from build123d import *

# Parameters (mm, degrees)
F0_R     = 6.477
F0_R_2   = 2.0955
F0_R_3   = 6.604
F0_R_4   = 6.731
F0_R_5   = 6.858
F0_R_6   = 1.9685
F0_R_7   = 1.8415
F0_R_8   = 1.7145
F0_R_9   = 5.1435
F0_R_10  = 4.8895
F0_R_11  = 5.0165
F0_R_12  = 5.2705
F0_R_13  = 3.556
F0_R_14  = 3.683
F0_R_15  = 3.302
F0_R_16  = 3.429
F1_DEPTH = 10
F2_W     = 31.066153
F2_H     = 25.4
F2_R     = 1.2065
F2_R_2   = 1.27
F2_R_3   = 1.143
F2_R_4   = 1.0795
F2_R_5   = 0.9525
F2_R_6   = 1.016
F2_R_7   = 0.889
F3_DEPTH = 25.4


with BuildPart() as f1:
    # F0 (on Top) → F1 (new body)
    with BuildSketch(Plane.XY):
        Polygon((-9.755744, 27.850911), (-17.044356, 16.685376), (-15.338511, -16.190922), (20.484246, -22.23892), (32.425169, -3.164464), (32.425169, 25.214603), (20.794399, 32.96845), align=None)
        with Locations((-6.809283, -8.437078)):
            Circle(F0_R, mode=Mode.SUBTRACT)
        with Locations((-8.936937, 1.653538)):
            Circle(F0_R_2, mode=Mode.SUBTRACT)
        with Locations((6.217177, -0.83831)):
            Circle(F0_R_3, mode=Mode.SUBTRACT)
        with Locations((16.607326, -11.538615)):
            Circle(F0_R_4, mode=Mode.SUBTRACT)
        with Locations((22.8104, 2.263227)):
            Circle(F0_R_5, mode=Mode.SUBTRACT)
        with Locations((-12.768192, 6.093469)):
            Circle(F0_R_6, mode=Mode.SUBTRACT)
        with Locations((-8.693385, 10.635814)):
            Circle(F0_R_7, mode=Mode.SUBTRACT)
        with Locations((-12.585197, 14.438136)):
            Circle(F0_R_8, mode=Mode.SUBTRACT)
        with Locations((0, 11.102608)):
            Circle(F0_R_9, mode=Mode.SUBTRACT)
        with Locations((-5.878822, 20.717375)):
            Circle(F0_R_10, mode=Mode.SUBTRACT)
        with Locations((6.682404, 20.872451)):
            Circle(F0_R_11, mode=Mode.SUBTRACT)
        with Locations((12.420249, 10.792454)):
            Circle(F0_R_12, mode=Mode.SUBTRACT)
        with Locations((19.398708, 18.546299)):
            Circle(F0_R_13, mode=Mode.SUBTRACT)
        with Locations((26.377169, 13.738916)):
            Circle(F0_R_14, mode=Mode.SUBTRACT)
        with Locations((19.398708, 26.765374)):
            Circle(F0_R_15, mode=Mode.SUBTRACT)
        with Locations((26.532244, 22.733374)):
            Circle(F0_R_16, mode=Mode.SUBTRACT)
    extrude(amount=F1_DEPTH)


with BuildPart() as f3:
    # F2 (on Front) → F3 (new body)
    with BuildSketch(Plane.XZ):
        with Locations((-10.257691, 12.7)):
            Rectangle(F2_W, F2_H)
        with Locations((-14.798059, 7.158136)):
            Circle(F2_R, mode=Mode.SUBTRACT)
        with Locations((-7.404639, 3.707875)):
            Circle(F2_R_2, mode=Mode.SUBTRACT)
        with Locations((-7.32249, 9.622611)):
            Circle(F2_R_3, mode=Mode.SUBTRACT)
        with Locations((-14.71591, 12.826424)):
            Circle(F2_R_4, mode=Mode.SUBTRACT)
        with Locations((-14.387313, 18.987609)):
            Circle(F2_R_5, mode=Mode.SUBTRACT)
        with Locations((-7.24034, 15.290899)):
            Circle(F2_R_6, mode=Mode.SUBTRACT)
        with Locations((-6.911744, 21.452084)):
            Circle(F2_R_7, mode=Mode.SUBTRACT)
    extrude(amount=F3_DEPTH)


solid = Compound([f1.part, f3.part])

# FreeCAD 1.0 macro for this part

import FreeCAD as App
import Part
import Sketcher

V = App.Vector
Q = App.Units.Quantity

doc = App.newDocument("Part")
body = doc.addObject("PartDesign::Body", "Body")

sketch1 = body.newObject("Sketcher::SketchObject", "Sketch")
sketch1.AttachmentSupport = (doc.getObject("XY_Plane"), [""])
sketch1.MapMode = "FlatFace"
sketch1.addGeometry([
    Part.LineSegment(V(-9.8, 27.9, 0), V(-17, 16.7, 0)),
    Part.LineSegment(V(-17, 16.7, 0), V(-15.3, -16.2, 0)),
    Part.LineSegment(V(-15.3, -16.2, 0), V(20.5, -22.2, 0)),
    Part.LineSegment(V(20.5, -22.2, 0), V(32.4, -3.2, 0)),
    Part.LineSegment(V(32.4, -3.2, 0), V(32.4, 25.2, 0)),
    Part.LineSegment(V(32.4, 25.2, 0), V(20.8, 33, 0)),
    Part.LineSegment(V(20.8, 33, 0), V(-9.8, 27.9, 0)),
    Part.Circle(V(-6.8, -8.4, 0), V(0, 0, 1), 6.5),
    Part.Circle(V(-8.9, 1.7, 0), V(0, 0, 1), 2.1),
    Part.Circle(V(6.2, -0.8, 0), V(0, 0, 1), 6.6),
    Part.Circle(V(16.6, -11.5, 0), V(0, 0, 1), 6.7),
    Part.Circle(V(22.8, 2.3, 0), V(0, 0, 1), 6.9),
    Part.Circle(V(-12.8, 6.1, 0), V(0, 0, 1), 2),
    Part.Circle(V(-8.7, 10.6, 0), V(0, 0, 1), 1.8),
    Part.Circle(V(-12.6, 14.4, 0), V(0, 0, 1), 1.7),
    Part.Circle(V(0, 11.1, 0), V(0, 0, 1), 5.1),
    Part.Circle(V(-5.9, 20.7, 0), V(0, 0, 1), 4.9),
    Part.Circle(V(6.7, 20.9, 0), V(0, 0, 1), 5),
    Part.Circle(V(12.4, 10.8, 0), V(0, 0, 1), 5.3),
    Part.Circle(V(26.4, 13.7, 0), V(0, 0, 1), 3.7),
    Part.Circle(V(19.4, 18.5, 0), V(0, 0, 1), 3.6),
    Part.Circle(V(26.5, 22.7, 0), V(0, 0, 1), 3.4),
    Part.Circle(V(19.4, 26.8, 0), V(0, 0, 1), 3.3),
], False)
sketch1.addConstraint([
    Sketcher.Constraint("Coincident", 0, 2, 1, 1),
    Sketcher.Constraint("Coincident", 1, 2, 2, 1),
    Sketcher.Constraint("Coincident", 2, 2, 3, 1),
    Sketcher.Constraint("Coincident", 3, 2, 4, 1),
    Sketcher.Constraint("Coincident", 4, 2, 5, 1),
    Sketcher.Constraint("Coincident", 5, 2, 6, 1),
    Sketcher.Constraint("Coincident", 6, 2, 0, 1),
    Sketcher.Constraint("Vertical", 4),
    Sketcher.Constraint("PointOnObject", 15, 3, -2),
    Sketcher.Constraint("Vertical", 20, 3, 22, 3),
    Sketcher.Constraint("Diameter", 7, Q("0.51 in")),
    Sketcher.Constraint("Diameter", 9, Q("0.52 in")),
    Sketcher.Constraint("Diameter", 10, Q("0.53 in")),
    Sketcher.Constraint("Diameter", 11, Q("0.54 in")),
    Sketcher.Constraint("Diameter", 19, Q("0.29 in")),
    Sketcher.Constraint("Diameter", 20, Q("0.28 in")),
    Sketcher.Constraint("Diameter", 21, Q("0.27 in")),
    Sketcher.Constraint("Diameter", 22, Q("0.26 in")),
    Sketcher.Constraint("Diameter", 8, Q("0.165 in")),
    Sketcher.Constraint("Diameter", 12, Q("0.155 in")),
    Sketcher.Constraint("Diameter", 13, Q("0.145 in")),
    Sketcher.Constraint("Diameter", 14, Q("0.135 in")),
    Sketcher.Constraint("Diameter", 15, Q("0.405 in")),
    Sketcher.Constraint("Diameter", 16, Q("0.385 in")),
    Sketcher.Constraint("Diameter", 17, Q("0.395 in")),
    Sketcher.Constraint("Diameter", 18, Q("0.415 in")),
    Sketcher.Constraint("DistanceY", -1, 1, 8, 3, Q("0.0650999 in")),
    Sketcher.Constraint("DistanceX", -1, 1, 11, 3, 22.8104),
    Sketcher.Constraint("DistanceY", -1, 1, 20, 3, 18.546299),
    Sketcher.Constraint("DistanceX", -1, 1, 5, 2, 20.794399),
    Sketcher.Constraint("DistanceX", 13, 3, 7, 3, 1.884102),
    Sketcher.Constraint("DistanceY", 8, 3, 14, 3, 12.784598),
    Sketcher.Constraint("DistanceX", 14, 3, 17, 3, 19.267601),
    Sketcher.Constraint("DistanceY", 21, 3, 22, 3, 4.032),
    Sketcher.Constraint("DistanceY", 0, 2, 16, 3, 4.031999),
    Sketcher.Constraint("DistanceX", 19, 3, 3, 2, 6.048),
    Sketcher.Constraint("DistanceY", 17, 3, 5, 2, 12.095999),
    Sketcher.Constraint("Distance", 3, 22.503789),
    Sketcher.Constraint("DistanceY", 4, 1, 4, 2, 28.379067),
    Sketcher.Constraint("DistanceY", 9, 3, -1, 1, 0.83831),
    Sketcher.Constraint("DistanceY", -1, 1, 12, 3, 6.093469),
    Sketcher.Constraint("DistanceY", -1, 1, 17, 3, 20.872451),
    Sketcher.Constraint("DistanceX", -1, 1, 18, 3, 12.420249),
    Sketcher.Constraint("DistanceX", -1, 1, 19, 3, 26.377169),
    Sketcher.Constraint("DistanceX", 1, 2, -1, 1, 15.338511),
    Sketcher.Constraint("DistanceY", 2, 2, -1, 1, 22.23892),
    Sketcher.Constraint("DistanceY", -1, 1, 6, 2, 27.850911),
    Sketcher.Constraint("DistanceX", 7, 3, 9, 3, 13.02646),
    Sketcher.Constraint("DistanceX", 9, 3, 10, 3, 10.390149),
    Sketcher.Constraint("DistanceY", 8, 3, 11, 3, 0.609689),
    Sketcher.Constraint("DistanceX", 12, 3, 7, 3, 5.958909),
    Sketcher.Constraint("DistanceY", 7, 3, 13, 3, 19.072892),
    Sketcher.Constraint("DistanceX", 14, 3, 8, 3, 3.64826),
    Sketcher.Constraint("DistanceY", 8, 3, 15, 3, 9.44907),
    Sketcher.Constraint("DistanceY", 14, 3, 16, 3, 6.279239),
    Sketcher.Constraint("DistanceY", 13, 3, 16, 3, 10.081561),
    Sketcher.Constraint("DistanceX", 12, 3, 16, 3, 6.88937),
    Sketcher.Constraint("DistanceX", 13, 3, 17, 3, 15.375789),
    Sketcher.Constraint("DistanceX", 9, 3, 18, 3, 6.203072),
    Sketcher.Constraint("DistanceY", 18, 3, 16, 3, 9.924921),
    Sketcher.Constraint("DistanceY", 11, 3, 19, 3, 11.475689),
    Sketcher.Constraint("DistanceX", 20, 3, 19, 3, 6.978461),
    Sketcher.Constraint("DistanceY", 19, 3, 21, 3, 8.994458),
    Sketcher.Constraint("DistanceX", 17, 3, 21, 3, 19.84984),
    Sketcher.Constraint("DistanceX", 0, 2, 14, 3, 4.459159),
    Sketcher.Constraint("DistanceY", 1, 2, 8, 3, 17.84446),
    Sketcher.Constraint("DistanceX", 10, 3, 2, 2, 3.87692),
    Sketcher.Constraint("DistanceY", 10, 3, 3, 2, 8.374151),
    Sketcher.Constraint("DistanceX", 6, 2, 16, 3, 3.876922),
])
pad1 = body.newObject("PartDesign::Pad", "Pad")
pad1.Profile = sketch1
pad1.Length = 10
body2 = doc.addObject("PartDesign::Body", "Body001")

sketch2 = body2.newObject("Sketcher::SketchObject", "Sketch001")
sketch2.AttachmentSupport = (doc.getObject("XZ_Plane001"), [""])
sketch2.MapMode = "FlatFace"
sketch2.addGeometry([
    Part.LineSegment(V(-25.8, 25.4, 0), V(-25.8, 0, 0)),
    Part.LineSegment(V(-25.8, 0, 0), V(5.3, 0, 0)),
    Part.LineSegment(V(5.3, 0, 0), V(5.3, 25.4, 0)),
    Part.LineSegment(V(5.3, 25.4, 0), V(-25.8, 25.4, 0)),
    Part.Circle(V(-14.8, 7.2, 0), V(0, 0, 1), 1.2),
    Part.Circle(V(-7.4, 3.7, 0), V(0, 0, 1), 1.3),
    Part.Circle(V(-7.3, 9.6, 0), V(0, 0, 1), 1.1),
    Part.Circle(V(-14.7, 12.8, 0), V(0, 0, 1), 1.1),
    Part.Circle(V(-14.4, 19, 0), V(0, 0, 1), 1),
    Part.Circle(V(-7.2, 15.3, 0), V(0, 0, 1), 1),
    Part.Circle(V(-6.9, 21.5, 0), V(0, 0, 1), 0.9),
], False)
sketch2.addConstraint([
    Sketcher.Constraint("Coincident", 0, 2, 1, 1),
    Sketcher.Constraint("Coincident", 1, 2, 2, 1),
    Sketcher.Constraint("Coincident", 2, 2, 3, 1),
    Sketcher.Constraint("Coincident", 3, 2, 0, 1),
    Sketcher.Constraint("Vertical", 0),
    Sketcher.Constraint("Horizontal", 1),
    Sketcher.Constraint("Vertical", 2),
    Sketcher.Constraint("Horizontal", 3),
    Sketcher.Constraint("PointOnObject", 0, 2, -1),
    Sketcher.Constraint("Diameter", 5, Q("0.1 in")),
    Sketcher.Constraint("Diameter", 6, Q("0.09 in")),
    Sketcher.Constraint("Diameter", 9, Q("0.08 in")),
    Sketcher.Constraint("Diameter", 10, Q("0.07 in")),
    Sketcher.Constraint("DistanceY", 0, 2, 0, 1, Q("1 in")),
    Sketcher.Constraint("Diameter", 4, Q("0.095 in")),
    Sketcher.Constraint("Diameter", 7, Q("0.085 in")),
    Sketcher.Constraint("Diameter", 8, Q("0.075 in")),
    Sketcher.Constraint("DistanceY", -1, 1, 9, 3, 15.290899),
    Sketcher.Constraint("DistanceX", 5, 3, 9, 3, 0.164299),
    Sketcher.Constraint("DistanceX", 8, 3, 2, 2, 19.662699),
    Sketcher.Constraint("DistanceX", 1, 1, 1, 2, 31.066153),
    Sketcher.Constraint("DistanceX", 4, 3, -1, 1, 14.798059),
    Sketcher.Constraint("DistanceX", 5, 3, -1, 1, 7.404639),
    Sketcher.Constraint("DistanceX", 6, 3, -1, 1, 7.32249),
    Sketcher.Constraint("DistanceY", -1, 1, 6, 3, 9.622611),
    Sketcher.Constraint("DistanceX", 7, 3, -1, 1, 14.71591),
    Sketcher.Constraint("DistanceY", -1, 1, 8, 3, 18.987609),
    Sketcher.Constraint("DistanceY", 5, 3, 4, 3, 3.450261),
    Sketcher.Constraint("DistanceY", 5, 3, 7, 3, 9.118549),
    Sketcher.Constraint("DistanceX", 8, 3, 10, 3, 7.475569),
    Sketcher.Constraint("DistanceY", 7, 3, 10, 3, 8.62566),
    Sketcher.Constraint("DistanceX", 0, 2, 4, 3, 10.992709),
    Sketcher.Constraint("DistanceY", -1, 1, 4, 3, 7.158136),
])
pad2 = body2.newObject("PartDesign::Pad", "Pad001")
pad2.Profile = sketch2
pad2.Length = Q("1 in")

doc.recompute()
